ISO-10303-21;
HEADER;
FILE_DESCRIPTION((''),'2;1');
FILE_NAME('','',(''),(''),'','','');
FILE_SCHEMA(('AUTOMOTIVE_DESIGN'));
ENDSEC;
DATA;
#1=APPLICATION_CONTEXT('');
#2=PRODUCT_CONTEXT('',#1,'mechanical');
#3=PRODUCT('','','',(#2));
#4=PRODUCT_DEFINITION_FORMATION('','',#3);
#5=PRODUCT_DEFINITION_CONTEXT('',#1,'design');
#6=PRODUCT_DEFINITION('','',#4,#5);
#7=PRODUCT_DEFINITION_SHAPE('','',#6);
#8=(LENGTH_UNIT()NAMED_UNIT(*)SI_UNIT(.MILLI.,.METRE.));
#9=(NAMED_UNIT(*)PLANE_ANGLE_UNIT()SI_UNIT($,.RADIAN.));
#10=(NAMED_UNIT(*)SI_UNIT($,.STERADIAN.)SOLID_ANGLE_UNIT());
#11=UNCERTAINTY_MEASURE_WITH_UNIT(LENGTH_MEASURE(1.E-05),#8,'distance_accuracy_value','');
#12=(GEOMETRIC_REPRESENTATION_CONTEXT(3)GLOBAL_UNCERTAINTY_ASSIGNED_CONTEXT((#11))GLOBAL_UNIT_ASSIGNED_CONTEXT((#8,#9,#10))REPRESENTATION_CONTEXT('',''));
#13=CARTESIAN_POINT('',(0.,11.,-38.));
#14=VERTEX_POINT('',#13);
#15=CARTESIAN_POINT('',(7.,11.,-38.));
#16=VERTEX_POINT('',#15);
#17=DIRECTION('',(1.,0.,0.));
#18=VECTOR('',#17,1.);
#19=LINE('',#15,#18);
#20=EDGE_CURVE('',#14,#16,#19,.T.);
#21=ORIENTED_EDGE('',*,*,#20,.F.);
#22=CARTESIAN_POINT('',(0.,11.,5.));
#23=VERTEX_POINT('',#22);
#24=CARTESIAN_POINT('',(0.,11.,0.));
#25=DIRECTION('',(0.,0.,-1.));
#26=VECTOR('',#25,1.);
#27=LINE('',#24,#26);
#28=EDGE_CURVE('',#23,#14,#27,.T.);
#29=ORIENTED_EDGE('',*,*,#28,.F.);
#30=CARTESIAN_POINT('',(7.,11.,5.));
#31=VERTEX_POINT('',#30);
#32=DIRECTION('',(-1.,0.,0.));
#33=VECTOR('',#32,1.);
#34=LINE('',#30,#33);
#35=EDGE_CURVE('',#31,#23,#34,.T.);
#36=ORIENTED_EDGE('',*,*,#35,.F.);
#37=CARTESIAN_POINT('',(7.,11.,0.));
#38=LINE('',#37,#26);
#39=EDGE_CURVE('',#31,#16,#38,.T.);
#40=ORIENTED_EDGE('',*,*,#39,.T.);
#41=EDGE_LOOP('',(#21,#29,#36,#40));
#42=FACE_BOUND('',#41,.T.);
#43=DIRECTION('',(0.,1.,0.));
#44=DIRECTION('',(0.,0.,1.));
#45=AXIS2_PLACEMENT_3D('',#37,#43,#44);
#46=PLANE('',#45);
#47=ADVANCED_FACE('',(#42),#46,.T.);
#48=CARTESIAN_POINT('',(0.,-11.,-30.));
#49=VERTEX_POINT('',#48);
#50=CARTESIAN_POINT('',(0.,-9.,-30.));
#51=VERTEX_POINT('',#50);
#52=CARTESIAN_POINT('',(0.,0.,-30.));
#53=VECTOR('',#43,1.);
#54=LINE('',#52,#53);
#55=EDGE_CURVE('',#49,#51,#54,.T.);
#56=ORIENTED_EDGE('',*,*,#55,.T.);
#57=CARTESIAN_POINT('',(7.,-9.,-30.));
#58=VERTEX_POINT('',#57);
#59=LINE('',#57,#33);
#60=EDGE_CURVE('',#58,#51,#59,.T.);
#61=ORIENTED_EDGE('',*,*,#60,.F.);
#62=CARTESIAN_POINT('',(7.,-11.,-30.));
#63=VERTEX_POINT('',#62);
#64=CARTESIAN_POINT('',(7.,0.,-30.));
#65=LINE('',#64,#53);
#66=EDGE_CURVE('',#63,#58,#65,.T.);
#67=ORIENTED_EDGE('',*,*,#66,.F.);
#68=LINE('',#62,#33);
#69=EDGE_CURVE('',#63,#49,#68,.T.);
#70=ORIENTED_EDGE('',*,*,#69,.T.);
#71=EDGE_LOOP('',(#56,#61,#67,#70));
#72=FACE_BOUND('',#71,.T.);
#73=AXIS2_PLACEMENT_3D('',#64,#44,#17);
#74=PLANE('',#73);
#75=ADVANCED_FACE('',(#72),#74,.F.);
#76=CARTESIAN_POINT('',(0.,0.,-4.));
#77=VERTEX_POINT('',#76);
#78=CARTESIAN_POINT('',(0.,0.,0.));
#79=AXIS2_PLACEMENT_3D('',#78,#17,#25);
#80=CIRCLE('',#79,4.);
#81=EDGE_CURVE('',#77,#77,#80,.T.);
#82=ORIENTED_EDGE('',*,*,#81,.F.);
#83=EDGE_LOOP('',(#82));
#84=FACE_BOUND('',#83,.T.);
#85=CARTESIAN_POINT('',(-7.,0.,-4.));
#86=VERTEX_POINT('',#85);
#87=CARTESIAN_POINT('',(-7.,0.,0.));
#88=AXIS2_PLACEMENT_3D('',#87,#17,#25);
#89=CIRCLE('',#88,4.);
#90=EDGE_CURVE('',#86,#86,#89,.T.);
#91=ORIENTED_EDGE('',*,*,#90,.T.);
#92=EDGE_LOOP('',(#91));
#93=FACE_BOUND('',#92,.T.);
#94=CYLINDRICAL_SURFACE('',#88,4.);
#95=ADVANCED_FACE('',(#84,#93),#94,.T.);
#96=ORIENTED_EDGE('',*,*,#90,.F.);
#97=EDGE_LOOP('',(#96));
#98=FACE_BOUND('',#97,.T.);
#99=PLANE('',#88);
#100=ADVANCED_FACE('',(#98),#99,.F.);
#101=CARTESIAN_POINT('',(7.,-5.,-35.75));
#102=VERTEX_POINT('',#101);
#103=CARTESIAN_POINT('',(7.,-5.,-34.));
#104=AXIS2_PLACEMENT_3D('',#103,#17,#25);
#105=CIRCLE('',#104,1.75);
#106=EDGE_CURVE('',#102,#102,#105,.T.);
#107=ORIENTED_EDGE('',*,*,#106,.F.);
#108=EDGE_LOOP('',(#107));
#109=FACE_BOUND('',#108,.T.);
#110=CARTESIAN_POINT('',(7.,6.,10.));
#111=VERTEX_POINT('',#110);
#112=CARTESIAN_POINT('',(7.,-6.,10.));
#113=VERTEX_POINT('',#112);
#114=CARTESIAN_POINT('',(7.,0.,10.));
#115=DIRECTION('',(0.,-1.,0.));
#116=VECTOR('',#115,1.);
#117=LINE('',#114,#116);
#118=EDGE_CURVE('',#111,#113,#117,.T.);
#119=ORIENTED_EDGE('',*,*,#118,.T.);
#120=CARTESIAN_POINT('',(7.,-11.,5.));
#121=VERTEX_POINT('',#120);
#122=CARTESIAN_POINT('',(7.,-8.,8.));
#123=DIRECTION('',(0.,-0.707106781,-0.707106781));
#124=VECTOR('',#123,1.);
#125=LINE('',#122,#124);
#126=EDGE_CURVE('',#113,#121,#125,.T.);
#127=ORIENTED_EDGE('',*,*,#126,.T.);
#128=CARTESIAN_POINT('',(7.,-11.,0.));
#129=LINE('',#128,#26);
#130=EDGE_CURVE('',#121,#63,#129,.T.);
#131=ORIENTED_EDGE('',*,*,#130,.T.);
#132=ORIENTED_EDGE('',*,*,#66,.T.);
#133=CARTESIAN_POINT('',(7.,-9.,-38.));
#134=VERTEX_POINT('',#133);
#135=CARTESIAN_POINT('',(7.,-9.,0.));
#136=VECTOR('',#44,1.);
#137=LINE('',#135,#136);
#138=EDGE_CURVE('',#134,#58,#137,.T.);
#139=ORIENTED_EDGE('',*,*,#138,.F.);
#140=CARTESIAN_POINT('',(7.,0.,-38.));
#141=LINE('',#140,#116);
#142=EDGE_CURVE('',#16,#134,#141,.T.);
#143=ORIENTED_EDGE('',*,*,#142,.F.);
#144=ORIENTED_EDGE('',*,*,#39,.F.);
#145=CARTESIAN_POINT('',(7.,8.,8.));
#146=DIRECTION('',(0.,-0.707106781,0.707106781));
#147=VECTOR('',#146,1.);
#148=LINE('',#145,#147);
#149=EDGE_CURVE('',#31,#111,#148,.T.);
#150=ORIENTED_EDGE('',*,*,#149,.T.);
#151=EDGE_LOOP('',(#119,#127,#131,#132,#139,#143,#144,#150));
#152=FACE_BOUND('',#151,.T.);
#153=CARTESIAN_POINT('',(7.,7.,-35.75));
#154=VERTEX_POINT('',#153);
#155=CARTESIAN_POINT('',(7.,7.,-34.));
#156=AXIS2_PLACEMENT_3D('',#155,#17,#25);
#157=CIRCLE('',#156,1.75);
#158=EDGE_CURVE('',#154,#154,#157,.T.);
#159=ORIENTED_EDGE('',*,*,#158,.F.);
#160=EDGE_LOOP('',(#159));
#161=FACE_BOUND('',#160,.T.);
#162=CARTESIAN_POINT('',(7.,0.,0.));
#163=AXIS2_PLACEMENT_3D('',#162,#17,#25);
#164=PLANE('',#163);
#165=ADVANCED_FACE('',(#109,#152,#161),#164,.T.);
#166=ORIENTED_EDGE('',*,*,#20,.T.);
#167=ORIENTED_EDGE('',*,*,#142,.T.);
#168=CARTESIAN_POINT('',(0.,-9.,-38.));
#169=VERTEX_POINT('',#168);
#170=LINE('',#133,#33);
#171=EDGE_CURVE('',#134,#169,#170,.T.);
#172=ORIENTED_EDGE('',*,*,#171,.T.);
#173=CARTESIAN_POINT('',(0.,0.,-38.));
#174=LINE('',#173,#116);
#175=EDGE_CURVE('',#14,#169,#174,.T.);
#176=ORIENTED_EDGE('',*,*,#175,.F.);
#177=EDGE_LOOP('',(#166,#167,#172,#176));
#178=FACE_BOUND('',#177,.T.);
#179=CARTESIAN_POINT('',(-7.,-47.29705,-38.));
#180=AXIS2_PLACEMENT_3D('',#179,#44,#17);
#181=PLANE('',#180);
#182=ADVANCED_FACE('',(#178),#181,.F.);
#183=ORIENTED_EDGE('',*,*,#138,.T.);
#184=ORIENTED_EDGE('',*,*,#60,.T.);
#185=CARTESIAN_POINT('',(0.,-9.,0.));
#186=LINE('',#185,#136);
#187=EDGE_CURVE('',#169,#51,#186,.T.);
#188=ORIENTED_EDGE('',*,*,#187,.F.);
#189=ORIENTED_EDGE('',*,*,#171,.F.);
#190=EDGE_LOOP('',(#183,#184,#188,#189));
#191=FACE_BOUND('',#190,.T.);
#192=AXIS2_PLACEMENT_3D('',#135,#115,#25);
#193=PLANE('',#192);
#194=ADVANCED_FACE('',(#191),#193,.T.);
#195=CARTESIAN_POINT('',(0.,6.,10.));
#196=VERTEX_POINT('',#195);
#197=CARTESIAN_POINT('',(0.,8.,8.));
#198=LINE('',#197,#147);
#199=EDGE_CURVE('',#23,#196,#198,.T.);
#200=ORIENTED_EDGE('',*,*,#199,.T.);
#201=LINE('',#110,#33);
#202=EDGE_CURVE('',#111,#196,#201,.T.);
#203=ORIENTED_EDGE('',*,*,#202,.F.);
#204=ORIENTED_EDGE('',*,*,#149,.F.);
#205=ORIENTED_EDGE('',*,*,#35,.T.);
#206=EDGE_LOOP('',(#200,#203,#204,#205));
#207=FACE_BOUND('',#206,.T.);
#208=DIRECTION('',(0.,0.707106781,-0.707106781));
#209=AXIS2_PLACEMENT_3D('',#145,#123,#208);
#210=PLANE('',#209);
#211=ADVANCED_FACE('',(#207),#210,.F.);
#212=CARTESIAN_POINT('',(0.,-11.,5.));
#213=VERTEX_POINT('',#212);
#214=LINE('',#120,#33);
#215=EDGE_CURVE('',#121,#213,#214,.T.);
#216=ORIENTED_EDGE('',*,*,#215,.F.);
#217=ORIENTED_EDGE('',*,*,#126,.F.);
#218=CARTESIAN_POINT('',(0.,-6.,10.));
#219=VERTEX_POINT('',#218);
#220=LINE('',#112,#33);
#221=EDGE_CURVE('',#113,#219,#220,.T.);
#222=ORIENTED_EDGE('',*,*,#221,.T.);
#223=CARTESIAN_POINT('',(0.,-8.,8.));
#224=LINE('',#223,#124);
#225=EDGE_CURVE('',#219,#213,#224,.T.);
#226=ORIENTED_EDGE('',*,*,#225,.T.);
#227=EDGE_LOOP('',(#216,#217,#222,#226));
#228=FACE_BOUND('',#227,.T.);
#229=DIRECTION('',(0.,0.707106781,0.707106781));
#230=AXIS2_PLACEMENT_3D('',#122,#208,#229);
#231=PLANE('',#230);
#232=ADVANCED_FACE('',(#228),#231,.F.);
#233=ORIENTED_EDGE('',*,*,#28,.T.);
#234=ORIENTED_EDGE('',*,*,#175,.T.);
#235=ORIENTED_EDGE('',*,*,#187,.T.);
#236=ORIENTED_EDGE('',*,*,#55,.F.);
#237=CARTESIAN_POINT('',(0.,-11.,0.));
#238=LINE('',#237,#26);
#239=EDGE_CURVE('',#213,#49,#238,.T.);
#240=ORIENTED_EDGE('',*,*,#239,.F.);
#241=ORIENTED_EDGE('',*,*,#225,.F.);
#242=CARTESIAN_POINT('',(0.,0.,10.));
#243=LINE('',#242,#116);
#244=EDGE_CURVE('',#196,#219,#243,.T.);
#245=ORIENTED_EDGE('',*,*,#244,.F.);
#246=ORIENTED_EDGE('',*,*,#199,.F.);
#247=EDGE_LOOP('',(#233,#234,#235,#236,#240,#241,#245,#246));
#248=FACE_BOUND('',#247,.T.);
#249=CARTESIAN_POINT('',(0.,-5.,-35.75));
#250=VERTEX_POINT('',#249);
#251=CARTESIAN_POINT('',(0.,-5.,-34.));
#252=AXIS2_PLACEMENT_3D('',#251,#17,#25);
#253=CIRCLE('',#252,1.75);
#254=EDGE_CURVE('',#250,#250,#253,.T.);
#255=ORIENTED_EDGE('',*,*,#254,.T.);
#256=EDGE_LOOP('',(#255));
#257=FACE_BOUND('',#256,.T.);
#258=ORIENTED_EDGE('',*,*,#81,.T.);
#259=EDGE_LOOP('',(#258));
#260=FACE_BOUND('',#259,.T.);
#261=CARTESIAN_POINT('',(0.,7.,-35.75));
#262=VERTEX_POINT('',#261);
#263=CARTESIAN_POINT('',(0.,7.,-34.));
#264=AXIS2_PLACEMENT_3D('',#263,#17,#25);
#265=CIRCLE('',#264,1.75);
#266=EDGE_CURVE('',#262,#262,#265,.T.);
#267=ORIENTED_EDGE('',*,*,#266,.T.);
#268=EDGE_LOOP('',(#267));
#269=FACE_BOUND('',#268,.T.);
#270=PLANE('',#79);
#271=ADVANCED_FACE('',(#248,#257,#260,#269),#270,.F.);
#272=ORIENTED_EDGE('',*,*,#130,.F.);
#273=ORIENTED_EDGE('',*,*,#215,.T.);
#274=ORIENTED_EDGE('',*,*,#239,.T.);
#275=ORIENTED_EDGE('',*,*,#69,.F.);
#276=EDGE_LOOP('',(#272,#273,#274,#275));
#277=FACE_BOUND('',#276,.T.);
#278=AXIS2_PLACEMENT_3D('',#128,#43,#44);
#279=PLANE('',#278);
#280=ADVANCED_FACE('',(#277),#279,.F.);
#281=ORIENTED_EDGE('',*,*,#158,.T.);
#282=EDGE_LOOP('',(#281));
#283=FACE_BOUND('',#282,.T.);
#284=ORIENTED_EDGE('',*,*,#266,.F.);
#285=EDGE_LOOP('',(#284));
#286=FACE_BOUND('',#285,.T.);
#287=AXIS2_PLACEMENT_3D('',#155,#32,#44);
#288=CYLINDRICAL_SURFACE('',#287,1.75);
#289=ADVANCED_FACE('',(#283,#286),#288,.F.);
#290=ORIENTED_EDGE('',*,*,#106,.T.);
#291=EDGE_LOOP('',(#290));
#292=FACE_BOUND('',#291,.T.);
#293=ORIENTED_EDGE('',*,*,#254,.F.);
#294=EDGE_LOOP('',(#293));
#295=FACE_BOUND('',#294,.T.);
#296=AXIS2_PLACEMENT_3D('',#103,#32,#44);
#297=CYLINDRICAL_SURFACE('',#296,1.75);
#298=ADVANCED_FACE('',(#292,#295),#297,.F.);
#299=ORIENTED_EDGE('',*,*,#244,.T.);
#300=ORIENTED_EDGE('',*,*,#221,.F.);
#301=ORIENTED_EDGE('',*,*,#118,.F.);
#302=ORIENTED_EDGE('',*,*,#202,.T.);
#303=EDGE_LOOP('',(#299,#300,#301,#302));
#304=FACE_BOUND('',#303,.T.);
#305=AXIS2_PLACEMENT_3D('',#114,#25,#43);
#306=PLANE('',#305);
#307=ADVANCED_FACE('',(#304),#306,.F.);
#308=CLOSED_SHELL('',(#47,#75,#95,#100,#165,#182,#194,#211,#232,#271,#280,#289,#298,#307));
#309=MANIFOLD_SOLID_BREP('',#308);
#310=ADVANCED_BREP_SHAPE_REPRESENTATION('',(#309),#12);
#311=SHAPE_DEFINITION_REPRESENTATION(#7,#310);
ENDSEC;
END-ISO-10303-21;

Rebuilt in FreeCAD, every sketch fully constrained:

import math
import FreeCAD as App
import Part
import Sketcher

V = App.Vector
Q = App.Units.Quantity

doc = App.newDocument("Part")
params = doc.addObject("Spreadsheet::Sheet", "Params")
for row, (alias, value) in enumerate([
    ("sketch1_diameter", "3.5 mm"),
    ("sketch1_width", "12 mm"),
    ("sketch1_width2", "2 mm"),
    ("sketch1_width3", "20 mm"),
    ("sketch1_height", "35 mm"),
    ("pad1_length", "7 mm"),
    ("sketch2_diameter", "8 mm"),
    ("pad2_length", "7 mm"),
    ("sketch3_height", "104 mm"),
], start=1):
    params.set(f"A{row}", alias)
    params.set(f"B{row}", "=" + value)
    params.setAlias(f"B{row}", alias)

body = doc.addObject("PartDesign::Body", "Body")

# Sketch on YZ plane
sketch1 = body.newObject("Sketcher::SketchObject", "Sketch")
sketch1.AttachmentSupport = (doc.getObject("YZ_Plane"), [""])
sketch1.MapMode = "FlatFace"
sketch1.addGeometry(Part.LineSegment(V(11, 5, 0), V(6, 10, 0)), False)
sketch1.addGeometry(Part.LineSegment(V(6, 10, 0), V(-6, 10, 0)), False)
sketch1.addGeometry(Part.LineSegment(V(-6, 10, 0), V(-11, 5, 0)), False)
sketch1.addGeometry(Part.LineSegment(V(-11, 5, 0), V(-11, -30, 0)), False)
sketch1.addGeometry(Part.LineSegment(V(-11, -30, 0), V(-9, -30, 0)), False)
sketch1.addGeometry(Part.LineSegment(V(-9, -30, 0), V(-9, -90, 0)), False)
sketch1.addGeometry(Part.LineSegment(V(-9, -90, 0), V(11, -90, 0)), False)
sketch1.addGeometry(Part.LineSegment(V(11, -90, 0), V(11, 5, 0)), False)
sketch1.addGeometry(Part.Circle(V(-5, -34, 0), V(0, 0, 1), 1.75), False)
sketch1.addGeometry(Part.ArcOfCircle(Part.Circle(V(-5, -64, 0), V(0, 0, 1), 1.75), math.radians(0), math.radians(180)), False)
sketch1.addGeometry(Part.LineSegment(V(-3.25, -64, 0), V(-3.25, -66, 0)), False)
sketch1.addGeometry(Part.ArcOfCircle(Part.Circle(V(-5, -66, 0), V(0, 0, 1), 1.75), math.radians(180), math.radians(360)), False)
sketch1.addGeometry(Part.LineSegment(V(-6.75, -66, 0), V(-6.75, -64, 0)), False)
sketch1.addGeometry(Part.Circle(V(7, -34, 0), V(0, 0, 1), 1.75), False)
sketch1.addGeometry(Part.ArcOfCircle(Part.Circle(V(5, -45, 0), V(0, 0, 1), 1.75), math.radians(0), math.radians(180)), False)
sketch1.addGeometry(Part.LineSegment(V(6.75, -45, 0), V(6.75, -47, 0)), False)
sketch1.addGeometry(Part.ArcOfCircle(Part.Circle(V(5, -47, 0), V(0, 0, 1), 1.75), math.radians(180), math.radians(360)), False)
sketch1.addGeometry(Part.LineSegment(V(3.25, -47, 0), V(3.25, -45, 0)), False)
sketch1.addGeometry(Part.ArcOfCircle(Part.Circle(V(5, -85, 0), V(0, 0, 1), 1.75), math.radians(180), math.radians(360)), False)
sketch1.addGeometry(Part.LineSegment(V(3.25, -85, 0), V(3.25, -83, 0)), False)
sketch1.addGeometry(Part.ArcOfCircle(Part.Circle(V(5, -83, 0), V(0, 0, 1), 1.75), math.radians(0), math.radians(180)), False)
sketch1.addGeometry(Part.LineSegment(V(6.75, -83, 0), V(6.75, -85, 0)), False)
sketch1.addConstraint(Sketcher.Constraint("Coincident", 0, 2, 1, 1))
sketch1.addConstraint(Sketcher.Constraint("Coincident", 1, 2, 2, 1))
sketch1.addConstraint(Sketcher.Constraint("Coincident", 2, 2, 3, 1))
sketch1.addConstraint(Sketcher.Constraint("Coincident", 3, 2, 4, 1))
sketch1.addConstraint(Sketcher.Constraint("Coincident", 4, 2, 5, 1))
sketch1.addConstraint(Sketcher.Constraint("Coincident", 5, 2, 6, 1))
sketch1.addConstraint(Sketcher.Constraint("Coincident", 6, 2, 7, 1))
sketch1.addConstraint(Sketcher.Constraint("Coincident", 7, 2, 0, 1))
sketch1.addConstraint(Sketcher.Constraint("Tangent", 9, 1, 10, 1))
sketch1.addConstraint(Sketcher.Constraint("Tangent", 10, 2, 11, 2))
sketch1.addConstraint(Sketcher.Constraint("Tangent", 11, 1, 12, 1))
sketch1.addConstraint(Sketcher.Constraint("Tangent", 12, 2, 9, 2))
sketch1.addConstraint(Sketcher.Constraint("Tangent", 14, 1, 15, 1))
sketch1.addConstraint(Sketcher.Constraint("Tangent", 15, 2, 16, 2))
sketch1.addConstraint(Sketcher.Constraint("Tangent", 16, 1, 17, 1))
sketch1.addConstraint(Sketcher.Constraint("Tangent", 17, 2, 14, 2))
sketch1.addConstraint(Sketcher.Constraint("Tangent", 18, 1, 19, 1))
sketch1.addConstraint(Sketcher.Constraint("Tangent", 19, 2, 20, 2))
sketch1.addConstraint(Sketcher.Constraint("Tangent", 20, 1, 21, 1))
sketch1.addConstraint(Sketcher.Constraint("Tangent", 21, 2, 18, 2))
sketch1.addConstraint(Sketcher.Constraint("Horizontal", 1))
sketch1.addConstraint(Sketcher.Constraint("Vertical", 3))
sketch1.addConstraint(Sketcher.Constraint("Horizontal", 4))
sketch1.addConstraint(Sketcher.Constraint("Vertical", 5))
sketch1.addConstraint(Sketcher.Constraint("Horizontal", 6))
sketch1.addConstraint(Sketcher.Constraint("Vertical", 7))
sketch1.addConstraint(Sketcher.Constraint("Vertical", 10))
sketch1.addConstraint(Sketcher.Constraint("Vertical", 12))
sketch1.addConstraint(Sketcher.Constraint("Vertical", 15))
sketch1.addConstraint(Sketcher.Constraint("Vertical", 17))
sketch1.addConstraint(Sketcher.Constraint("Vertical", 19))
sketch1.addConstraint(Sketcher.Constraint("Vertical", 21))
sketch1.addConstraint(Sketcher.Constraint("Equal", 8, 9))
sketch1.addConstraint(Sketcher.Constraint("Equal", 11, 13))
sketch1.addConstraint(Sketcher.Constraint("Equal", 13, 14))
sketch1.addConstraint(Sketcher.Constraint("Equal", 16, 18))
sketch1.addConstraint(Sketcher.Constraint("Symmetric", 2, 2, 7, 2, -2))
sketch1.addConstraint(Sketcher.Constraint("Perpendicular", 0, 2))
sketch1.addConstraint(Sketcher.Constraint("Horizontal", 8, 3, 13, 3))
sketch1.addConstraint(Sketcher.Constraint("Vertical", 8, 3, 9, 3))
sketch1.addConstraint(Sketcher.Constraint("Vertical", 16, 3, 18, 3))
sketch1.addConstraint(Sketcher.Constraint("Equal", 4, 10))
sketch1.addConstraint(Sketcher.Constraint("Equal", 12, 15))
sketch1.addConstraint(Sketcher.Constraint("Equal", 17, 19))
sketch1.addConstraint(Sketcher.Constraint("Equal", 0, 2))
sketch1.addConstraint(Sketcher.Constraint("Diameter", 8, Q("3.5 mm")))
sketch1.addConstraint(Sketcher.Constraint("DistanceX", 1, 2, 1, 1, Q("12 mm")))
sketch1.addConstraint(Sketcher.Constraint("DistanceX", 4, 1, 4, 2, Q("2 mm")))
sketch1.addConstraint(Sketcher.Constraint("DistanceX", 6, 1, 6, 2, Q("20 mm")))
sketch1.addConstraint(Sketcher.Constraint("DistanceY", 3, 2, 3, 1, Q("35 mm")))
sketch1.addConstraint(Sketcher.Constraint("DistanceY", 5, 2, 5, 1, Q("60 mm")))
sketch1.addConstraint(Sketcher.Constraint("DistanceX", 8, 3, -1, 1, Q("5 mm")))
sketch1.addConstraint(Sketcher.Constraint("DistanceY", 8, 3, -1, 1, Q("34 mm")))
sketch1.addConstraint(Sketcher.Constraint("DistanceY", 9, 3, -1, 1, Q("64 mm")))
sketch1.addConstraint(Sketcher.Constraint("DistanceX", -1, 1, 13, 3, Q("7 mm")))
sketch1.addConstraint(Sketcher.Constraint("DistanceX", -1, 1, 14, 3, Q("5 mm")))
sketch1.addConstraint(Sketcher.Constraint("DistanceY", 14, 3, -1, 1, Q("45 mm")))
sketch1.addConstraint(Sketcher.Constraint("DistanceY", 18, 3, -1, 1, Q("85 mm")))
sketch1.addConstraint(Sketcher.Constraint("DistanceY", -1, 1, 0, 2, Q("10 mm")))
sketch1.setExpression("Constraints[45]", "Params.sketch1_diameter")
sketch1.setExpression("Constraints[46]", "Params.sketch1_width")
sketch1.setExpression("Constraints[47]", "Params.sketch1_width2")
sketch1.setExpression("Constraints[48]", "Params.sketch1_width3")
sketch1.setExpression("Constraints[49]", "Params.sketch1_height")
pad1 = body.newObject("PartDesign::Pad", "Pad")
pad1.Profile = sketch1
pad1.setExpression("Length", "Params.pad1_length")

# Sketch on YZ plane
sketch2 = body.newObject("Sketcher::SketchObject", "Sketch001")
sketch2.AttachmentSupport = (doc.getObject("YZ_Plane"), [""])
sketch2.MapMode = "FlatFace"
sketch2.addGeometry(Part.Circle(V(0, 0, 0), V(0, 0, 1), 4), False)
sketch2.addConstraint(Sketcher.Constraint("Coincident", 0, 3, -1, 1))
sketch2.addConstraint(Sketcher.Constraint("Diameter", 0, Q("8 mm")))
sketch2.setExpression("Constraints[1]", "Params.sketch2_diameter")
pad2 = body.newObject("PartDesign::Pad", "Pad001")
pad2.Profile = sketch2
pad2.setExpression("Length", "Params.pad2_length")
pad2.Reversed = True

# Sketch on YZ plane
sketch3 = body.newObject("Sketcher::SketchObject", "Sketch002")
sketch3.AttachmentSupport = (doc.getObject("YZ_Plane"), [""])
sketch3.MapMode = "FlatFace"
sketch3.AttachmentOffset = App.Placement(V(0, 0, 7), App.Rotation())
sketch3.addGeometry(Part.LineSegment(V(29.29705, -38, 0), V(-47.29705, -38, 0)), False)
sketch3.addGeometry(Part.LineSegment(V(-47.29705, -38, 0), V(-47.29705, -142, 0)), False)
sketch3.addGeometry(Part.LineSegment(V(-47.29705, -142, 0), V(29.29705, -142, 0)), False)
sketch3.addGeometry(Part.LineSegment(V(29.29705, -142, 0), V(29.29705, -38, 0)), False)
sketch3.addConstraint(Sketcher.Constraint("Coincident", 0, 2, 1, 1))
sketch3.addConstraint(Sketcher.Constraint("Coincident", 1, 2, 2, 1))
sketch3.addConstraint(Sketcher.Constraint("Coincident", 2, 2, 3, 1))
sketch3.addConstraint(Sketcher.Constraint("Coincident", 3, 2, 0, 1))
sketch3.addConstraint(Sketcher.Constraint("Horizontal", 0))
sketch3.addConstraint(Sketcher.Constraint("Vertical", 1))
sketch3.addConstraint(Sketcher.Constraint("Horizontal", 2))
sketch3.addConstraint(Sketcher.Constraint("Vertical", 3))
sketch3.addConstraint(Sketcher.Constraint("DistanceY", 1, 2, 1, 1, Q("104 mm")))
sketch3.addConstraint(Sketcher.Constraint("DistanceY", 0, 2, -1, 1, Q("38 mm")))
sketch3.addConstraint(Sketcher.Constraint("DistanceX", 0, 2, 0, 1, Q("76.594101 mm")))
sketch3.addConstraint(Sketcher.Constraint("DistanceX", 0, 2, -1, 1, Q("47.29705 mm")))
sketch3.setExpression("Constraints[8]", "Params.sketch3_height")
pocket1 = body.newObject("PartDesign::Pocket", "Pocket")
pocket1.Profile = sketch3
pocket1.Type = "ThroughAll"
pocket1.Midplane = True

doc.recompute()
